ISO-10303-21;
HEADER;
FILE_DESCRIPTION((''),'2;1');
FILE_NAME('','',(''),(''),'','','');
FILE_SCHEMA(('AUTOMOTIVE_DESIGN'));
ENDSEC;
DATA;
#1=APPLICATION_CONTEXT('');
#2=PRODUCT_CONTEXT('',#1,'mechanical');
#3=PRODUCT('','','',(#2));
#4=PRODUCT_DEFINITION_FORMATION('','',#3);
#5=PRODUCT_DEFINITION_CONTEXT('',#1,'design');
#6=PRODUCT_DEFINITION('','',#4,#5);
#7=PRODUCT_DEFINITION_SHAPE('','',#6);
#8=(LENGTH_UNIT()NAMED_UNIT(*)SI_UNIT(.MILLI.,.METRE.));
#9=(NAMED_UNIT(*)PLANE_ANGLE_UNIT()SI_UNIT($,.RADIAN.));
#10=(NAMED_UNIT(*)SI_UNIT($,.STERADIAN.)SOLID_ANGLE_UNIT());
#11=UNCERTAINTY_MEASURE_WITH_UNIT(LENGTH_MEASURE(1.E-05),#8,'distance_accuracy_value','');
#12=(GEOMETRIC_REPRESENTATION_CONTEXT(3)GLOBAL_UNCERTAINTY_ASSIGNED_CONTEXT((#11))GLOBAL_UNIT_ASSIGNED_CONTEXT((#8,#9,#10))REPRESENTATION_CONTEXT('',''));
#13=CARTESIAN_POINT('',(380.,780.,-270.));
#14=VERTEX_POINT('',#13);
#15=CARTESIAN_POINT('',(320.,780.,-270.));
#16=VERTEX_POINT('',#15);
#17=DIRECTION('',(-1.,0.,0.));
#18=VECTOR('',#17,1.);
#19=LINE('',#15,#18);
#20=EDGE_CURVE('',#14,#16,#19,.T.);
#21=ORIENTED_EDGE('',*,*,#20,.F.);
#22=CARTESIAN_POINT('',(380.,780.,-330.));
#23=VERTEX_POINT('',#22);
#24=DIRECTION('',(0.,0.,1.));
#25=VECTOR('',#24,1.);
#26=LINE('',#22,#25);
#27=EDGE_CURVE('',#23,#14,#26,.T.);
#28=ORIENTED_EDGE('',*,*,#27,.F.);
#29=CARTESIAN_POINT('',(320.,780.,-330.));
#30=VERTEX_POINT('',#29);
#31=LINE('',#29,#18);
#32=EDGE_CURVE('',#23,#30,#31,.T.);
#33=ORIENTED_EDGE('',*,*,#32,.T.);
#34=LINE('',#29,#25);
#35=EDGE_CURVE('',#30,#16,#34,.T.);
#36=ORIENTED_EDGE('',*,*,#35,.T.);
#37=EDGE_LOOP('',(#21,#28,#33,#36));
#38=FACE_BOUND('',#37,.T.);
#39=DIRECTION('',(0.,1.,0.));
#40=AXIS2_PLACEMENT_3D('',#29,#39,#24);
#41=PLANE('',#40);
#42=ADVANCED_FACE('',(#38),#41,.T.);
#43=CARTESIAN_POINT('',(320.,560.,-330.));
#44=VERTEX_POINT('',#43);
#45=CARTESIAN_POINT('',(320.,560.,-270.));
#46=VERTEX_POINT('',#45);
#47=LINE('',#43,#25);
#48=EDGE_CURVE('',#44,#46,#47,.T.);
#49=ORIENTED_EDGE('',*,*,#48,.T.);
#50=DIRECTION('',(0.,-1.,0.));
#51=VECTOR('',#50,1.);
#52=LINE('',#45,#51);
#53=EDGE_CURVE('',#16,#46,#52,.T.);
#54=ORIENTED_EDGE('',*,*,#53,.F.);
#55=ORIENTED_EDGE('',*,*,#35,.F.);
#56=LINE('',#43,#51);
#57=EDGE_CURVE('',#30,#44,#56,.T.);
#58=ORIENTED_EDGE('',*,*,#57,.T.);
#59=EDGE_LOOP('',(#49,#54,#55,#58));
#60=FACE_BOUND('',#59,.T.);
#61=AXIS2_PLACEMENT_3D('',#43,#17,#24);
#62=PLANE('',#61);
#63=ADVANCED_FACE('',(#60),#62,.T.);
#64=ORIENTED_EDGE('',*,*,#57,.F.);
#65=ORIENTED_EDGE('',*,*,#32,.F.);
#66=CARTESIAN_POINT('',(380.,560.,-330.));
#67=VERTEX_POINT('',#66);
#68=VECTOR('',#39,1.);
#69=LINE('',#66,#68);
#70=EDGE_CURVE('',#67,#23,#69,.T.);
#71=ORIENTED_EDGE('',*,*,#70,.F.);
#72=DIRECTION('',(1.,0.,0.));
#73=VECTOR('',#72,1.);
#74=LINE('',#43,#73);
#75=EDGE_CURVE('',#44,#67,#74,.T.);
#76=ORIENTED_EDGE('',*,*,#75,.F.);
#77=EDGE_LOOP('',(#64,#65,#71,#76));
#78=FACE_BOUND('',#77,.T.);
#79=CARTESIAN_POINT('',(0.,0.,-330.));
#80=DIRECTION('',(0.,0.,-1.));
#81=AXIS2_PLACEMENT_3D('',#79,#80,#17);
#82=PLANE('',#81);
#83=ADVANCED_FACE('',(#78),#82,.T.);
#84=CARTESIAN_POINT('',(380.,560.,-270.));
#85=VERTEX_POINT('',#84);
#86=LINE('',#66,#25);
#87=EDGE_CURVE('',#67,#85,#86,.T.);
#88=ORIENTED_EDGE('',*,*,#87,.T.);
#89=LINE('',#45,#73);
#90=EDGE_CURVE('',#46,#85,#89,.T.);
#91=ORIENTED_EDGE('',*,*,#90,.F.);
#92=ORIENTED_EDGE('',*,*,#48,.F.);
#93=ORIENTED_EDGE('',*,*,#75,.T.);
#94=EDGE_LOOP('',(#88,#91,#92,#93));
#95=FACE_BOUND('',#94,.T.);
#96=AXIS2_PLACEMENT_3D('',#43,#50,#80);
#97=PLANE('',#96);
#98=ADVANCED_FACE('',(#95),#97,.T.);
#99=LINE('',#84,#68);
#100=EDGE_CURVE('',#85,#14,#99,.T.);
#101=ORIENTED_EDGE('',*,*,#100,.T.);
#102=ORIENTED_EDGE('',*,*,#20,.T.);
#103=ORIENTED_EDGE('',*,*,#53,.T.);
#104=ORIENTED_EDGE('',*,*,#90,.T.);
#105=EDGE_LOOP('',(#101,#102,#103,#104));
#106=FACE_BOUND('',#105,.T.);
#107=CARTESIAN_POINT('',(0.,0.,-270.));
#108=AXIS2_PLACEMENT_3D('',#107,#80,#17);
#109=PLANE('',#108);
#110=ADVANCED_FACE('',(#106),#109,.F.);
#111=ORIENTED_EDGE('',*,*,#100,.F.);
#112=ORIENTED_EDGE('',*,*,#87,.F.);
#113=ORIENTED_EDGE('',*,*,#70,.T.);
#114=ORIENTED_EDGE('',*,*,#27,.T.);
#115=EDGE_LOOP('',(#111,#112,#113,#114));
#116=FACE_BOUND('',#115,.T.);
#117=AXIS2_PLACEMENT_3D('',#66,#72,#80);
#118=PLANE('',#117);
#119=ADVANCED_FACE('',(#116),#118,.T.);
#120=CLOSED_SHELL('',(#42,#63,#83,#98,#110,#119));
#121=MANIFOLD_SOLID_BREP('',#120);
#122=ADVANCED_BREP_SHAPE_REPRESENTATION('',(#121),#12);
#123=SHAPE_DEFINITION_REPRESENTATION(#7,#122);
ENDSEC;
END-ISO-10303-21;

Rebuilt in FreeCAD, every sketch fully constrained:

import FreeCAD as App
import Part
import Sketcher

V = App.Vector
Q = App.Units.Quantity


def add_polygon(sketch, points):
    """Adds a closed chain of lines whose ends are joined by coincident constraints."""
    first, n = sketch.GeometryCount, len(points)
    for a, b in zip(points, points[1:] + points[:1]):
        sketch.addGeometry(Part.LineSegment(App.Vector(*a, 0), App.Vector(*b, 0)), False)
    for i in range(n):
        sketch.addConstraint(Sketcher.Constraint("Coincident", first + i, 2, first + (i + 1) % n, 1))

doc = App.newDocument("Part")
params = doc.addObject("Spreadsheet::Sheet", "Params")
for row, (alias, value) in enumerate([
    ("sketch1_width", "60 mm"),
    ("sketch1_height", "220 mm"),
    ("pad1_length", "60 mm"),
], start=1):
    params.set(f"A{row}", alias)
    params.set(f"B{row}", "=" + value)
    params.setAlias(f"B{row}", alias)

body = doc.addObject("PartDesign::Body", "Body")

# Sketch on XY plane
sketch1 = body.newObject("Sketcher::SketchObject", "Sketch")
sketch1.AttachmentSupport = (doc.getObject("XY_Plane"), [""])
sketch1.MapMode = "FlatFace"
sketch1.AttachmentOffset = App.Placement(V(0, 0, -270), App.Rotation())
add_polygon(sketch1, [(320, 780), (320, 560), (380, 560), (380, 780)])  # lines 0-3
sketch1.addConstraint(Sketcher.Constraint("Vertical", 0))
sketch1.addConstraint(Sketcher.Constraint("Horizontal", 1))
sketch1.addConstraint(Sketcher.Constraint("Vertical", 2))
sketch1.addConstraint(Sketcher.Constraint("Horizontal", 3))
sketch1.addConstraint(Sketcher.Constraint("DistanceX", 1, 1, 1, 2, Q("60 mm")))
sketch1.addConstraint(Sketcher.Constraint("DistanceY", 0, 2, 0, 1, Q("220 mm")))
sketch1.addConstraint(Sketcher.Constraint("DistanceX", -1, 1, 0, 2, Q("320 mm")))
sketch1.addConstraint(Sketcher.Constraint("DistanceY", -1, 1, 0, 2, Q("560 mm")))
sketch1.setExpression("Constraints[8]", "Params.sketch1_width")
sketch1.setExpression("Constraints[9]", "Params.sketch1_height")
pad1 = body.newObject("PartDesign::Pad", "Pad")
pad1.Profile = sketch1
pad1.setExpression("Length", "Params.pad1_length")
pad1.Reversed = True

doc.recompute()
